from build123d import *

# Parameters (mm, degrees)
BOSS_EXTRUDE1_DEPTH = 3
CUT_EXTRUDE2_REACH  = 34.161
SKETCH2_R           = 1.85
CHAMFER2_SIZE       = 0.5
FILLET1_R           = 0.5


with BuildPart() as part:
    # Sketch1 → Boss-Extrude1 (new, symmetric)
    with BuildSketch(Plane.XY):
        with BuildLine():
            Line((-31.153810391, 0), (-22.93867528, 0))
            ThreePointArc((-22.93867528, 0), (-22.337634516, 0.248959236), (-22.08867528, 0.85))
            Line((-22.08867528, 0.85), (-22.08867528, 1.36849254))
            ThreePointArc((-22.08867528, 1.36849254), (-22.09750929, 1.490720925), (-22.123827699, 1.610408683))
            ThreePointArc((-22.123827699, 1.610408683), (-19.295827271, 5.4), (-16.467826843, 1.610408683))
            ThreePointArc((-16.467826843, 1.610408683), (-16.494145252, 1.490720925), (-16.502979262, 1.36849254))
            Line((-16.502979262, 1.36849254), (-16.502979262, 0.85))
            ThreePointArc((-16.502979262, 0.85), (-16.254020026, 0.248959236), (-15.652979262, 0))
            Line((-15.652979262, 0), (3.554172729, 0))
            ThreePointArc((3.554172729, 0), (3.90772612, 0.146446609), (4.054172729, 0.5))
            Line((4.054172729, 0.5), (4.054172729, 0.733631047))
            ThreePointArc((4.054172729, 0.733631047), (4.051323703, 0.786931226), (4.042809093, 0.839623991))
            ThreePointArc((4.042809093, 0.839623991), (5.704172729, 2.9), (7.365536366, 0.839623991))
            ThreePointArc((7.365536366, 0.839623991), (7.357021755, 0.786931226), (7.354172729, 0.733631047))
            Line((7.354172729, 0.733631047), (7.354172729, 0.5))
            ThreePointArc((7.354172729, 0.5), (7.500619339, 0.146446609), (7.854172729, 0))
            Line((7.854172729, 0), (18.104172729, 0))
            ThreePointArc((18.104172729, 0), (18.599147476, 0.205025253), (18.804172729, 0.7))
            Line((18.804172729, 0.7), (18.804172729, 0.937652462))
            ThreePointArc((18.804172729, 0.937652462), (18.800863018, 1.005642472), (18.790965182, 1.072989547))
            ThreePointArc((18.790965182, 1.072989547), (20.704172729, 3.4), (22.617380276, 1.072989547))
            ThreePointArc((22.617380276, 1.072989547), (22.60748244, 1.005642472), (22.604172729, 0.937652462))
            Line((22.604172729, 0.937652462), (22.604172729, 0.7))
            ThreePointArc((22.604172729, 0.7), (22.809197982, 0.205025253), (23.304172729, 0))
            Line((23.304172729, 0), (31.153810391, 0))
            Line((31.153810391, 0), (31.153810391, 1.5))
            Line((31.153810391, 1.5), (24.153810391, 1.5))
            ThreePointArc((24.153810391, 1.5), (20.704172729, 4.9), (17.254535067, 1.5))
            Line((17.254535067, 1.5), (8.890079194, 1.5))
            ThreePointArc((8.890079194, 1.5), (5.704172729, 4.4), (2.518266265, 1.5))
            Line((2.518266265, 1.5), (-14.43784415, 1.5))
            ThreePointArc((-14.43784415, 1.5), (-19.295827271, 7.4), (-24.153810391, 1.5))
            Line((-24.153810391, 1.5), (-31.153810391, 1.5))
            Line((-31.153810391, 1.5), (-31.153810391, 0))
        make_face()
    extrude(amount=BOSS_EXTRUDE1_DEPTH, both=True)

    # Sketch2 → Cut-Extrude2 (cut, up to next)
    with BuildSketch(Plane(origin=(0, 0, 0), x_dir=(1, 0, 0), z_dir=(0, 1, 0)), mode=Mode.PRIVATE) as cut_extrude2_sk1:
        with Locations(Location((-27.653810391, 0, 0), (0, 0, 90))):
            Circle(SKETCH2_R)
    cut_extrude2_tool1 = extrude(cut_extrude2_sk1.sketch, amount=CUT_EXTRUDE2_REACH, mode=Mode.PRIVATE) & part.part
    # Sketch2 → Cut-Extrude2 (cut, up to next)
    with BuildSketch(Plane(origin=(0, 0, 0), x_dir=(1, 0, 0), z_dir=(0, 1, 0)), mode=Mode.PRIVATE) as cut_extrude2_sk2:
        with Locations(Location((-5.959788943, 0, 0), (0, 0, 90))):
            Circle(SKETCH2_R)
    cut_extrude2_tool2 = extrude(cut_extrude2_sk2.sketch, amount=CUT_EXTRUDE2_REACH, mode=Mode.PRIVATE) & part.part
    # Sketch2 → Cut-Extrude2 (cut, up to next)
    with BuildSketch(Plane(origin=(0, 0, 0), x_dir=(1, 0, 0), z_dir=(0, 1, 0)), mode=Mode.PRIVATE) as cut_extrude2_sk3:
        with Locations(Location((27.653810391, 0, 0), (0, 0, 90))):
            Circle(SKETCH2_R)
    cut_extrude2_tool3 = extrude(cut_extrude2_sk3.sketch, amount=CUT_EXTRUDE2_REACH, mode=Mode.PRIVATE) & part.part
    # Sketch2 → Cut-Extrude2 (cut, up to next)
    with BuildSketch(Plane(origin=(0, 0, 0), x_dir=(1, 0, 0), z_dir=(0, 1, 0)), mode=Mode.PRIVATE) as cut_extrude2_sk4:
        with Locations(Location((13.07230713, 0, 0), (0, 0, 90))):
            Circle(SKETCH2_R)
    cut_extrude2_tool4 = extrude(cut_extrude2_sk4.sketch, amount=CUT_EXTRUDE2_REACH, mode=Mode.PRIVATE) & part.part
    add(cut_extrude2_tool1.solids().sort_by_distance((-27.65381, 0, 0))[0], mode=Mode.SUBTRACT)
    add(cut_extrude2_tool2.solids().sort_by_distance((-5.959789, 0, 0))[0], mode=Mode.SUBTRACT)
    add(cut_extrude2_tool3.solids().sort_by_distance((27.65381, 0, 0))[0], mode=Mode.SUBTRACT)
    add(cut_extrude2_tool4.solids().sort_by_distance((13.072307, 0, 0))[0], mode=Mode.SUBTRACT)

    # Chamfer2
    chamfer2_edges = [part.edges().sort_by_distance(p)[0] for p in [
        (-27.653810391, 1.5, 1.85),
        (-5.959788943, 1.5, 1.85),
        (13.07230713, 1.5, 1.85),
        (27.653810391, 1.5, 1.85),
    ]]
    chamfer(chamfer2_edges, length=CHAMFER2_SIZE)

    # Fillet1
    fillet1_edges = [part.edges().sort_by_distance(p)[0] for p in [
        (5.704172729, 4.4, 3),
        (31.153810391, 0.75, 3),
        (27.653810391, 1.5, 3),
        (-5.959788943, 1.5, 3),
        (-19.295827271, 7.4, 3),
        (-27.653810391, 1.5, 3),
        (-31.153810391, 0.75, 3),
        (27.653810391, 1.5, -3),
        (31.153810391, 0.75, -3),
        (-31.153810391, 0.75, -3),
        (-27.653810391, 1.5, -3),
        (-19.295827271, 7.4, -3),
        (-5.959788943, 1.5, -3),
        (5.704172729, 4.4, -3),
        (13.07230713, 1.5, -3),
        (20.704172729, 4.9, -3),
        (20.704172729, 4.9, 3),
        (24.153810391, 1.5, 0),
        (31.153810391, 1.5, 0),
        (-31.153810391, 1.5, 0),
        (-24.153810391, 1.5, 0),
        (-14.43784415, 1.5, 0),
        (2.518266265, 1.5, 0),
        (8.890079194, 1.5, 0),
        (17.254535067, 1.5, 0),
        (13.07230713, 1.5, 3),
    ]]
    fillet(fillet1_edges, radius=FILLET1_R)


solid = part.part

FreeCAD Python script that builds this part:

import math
import FreeCAD as App
import Part
import Sketcher
from FreeCAD import Vector


def edges_at(feature, points):
    """Names of the edges that pass closest to the given points."""
    edges = feature.Shape.Edges
    near = lambda p: min(range(len(edges)), key=lambda i: edges[i].distToShape(Part.Vertex(*p))[0])
    return sorted({f"Edge{near(p) + 1}" for p in points})

doc = App.newDocument("Part")
params = doc.addObject("Spreadsheet::Sheet", "Params")
for row, (alias, value) in enumerate([
    ("sketch1_radius", "0.5 mm"),
    ("sketch1_radius2", "1.7 mm"),
    ("sketch1_radius3", "0.7 mm"),
    ("sketch1_radius4", "3.2 mm"),
    ("sketch1_width", "7 mm"),
    ("pad1_length", "6 mm"),
    ("sketch2_diameter", "3.7 mm"),
    ("sketch3_diameter", "3.7 mm"),
    ("sketch4_diameter", "3.7 mm"),
    ("sketch5_diameter", "3.7 mm"),
    ("chamfer_size", "0.5 mm"),
    ("fillet_radius", "0.5 mm"),
], start=1):
    params.set(f"A{row}", alias)
    params.set(f"B{row}", "=" + value)
    params.setAlias(f"B{row}", alias)

body = doc.addObject("PartDesign::Body", "Body")

# Sketch on XY plane
sketch1 = body.newObject("Sketcher::SketchObject", "Sketch")
sketch1.AttachmentSupport = (doc.getObject("XY_Plane"), [""])
sketch1.MapMode = "FlatFace"
sketch1.addGeometry([
    Part.LineSegment(Vector(-31.15, 0, 0), Vector(-22.94, 0, 0)),  # 0
    Part.ArcOfCircle(Part.Circle(Vector(-22.94, 0.85, 0), Vector(0, 0, 1), 0.85), math.radians(-90), math.radians(0)),  # 1
    Part.LineSegment(Vector(-22.09, 0.85, 0), Vector(-22.09, 1.37, 0)),  # 2
    Part.ArcOfCircle(Part.Circle(Vector(-22.94, 1.37, 0), Vector(0, 0, 1), 0.85), math.radians(0), math.radians(16.54)),  # 3
    Part.ArcOfCircle(Part.Circle(Vector(-19.3, 2.45, 0), Vector(0, 0, 1), 2.95), math.radians(-17), math.radians(197)),  # 4
    Part.ArcOfCircle(Part.Circle(Vector(-15.65, 1.37, 0), Vector(0, 0, 1), 0.85), math.radians(163.46), math.radians(180)),  # 5
    Part.LineSegment(Vector(-16.5, 1.37, 0), Vector(-16.5, 0.85, 0)),  # 6
    Part.ArcOfCircle(Part.Circle(Vector(-15.65, 0.85, 0), Vector(0, 0, 1), 0.85), math.radians(180), math.radians(270)),  # 7
    Part.LineSegment(Vector(-15.65, 0, 0), Vector(3.55, 0, 0)),  # 8
    Part.ArcOfCircle(Part.Circle(Vector(3.55, 0.5, 0), Vector(0, 0, 1), 0.5), math.radians(-90), math.radians(0)),  # 9
    Part.LineSegment(Vector(4.05, 0.5, 0), Vector(4.05, 0.73, 0)),  # 10
    Part.ArcOfCircle(Part.Circle(Vector(3.55, 0.73, 0), Vector(0, 0, 1), 0.5), math.radians(0), math.radians(12.24)),  # 11
    Part.ArcOfCircle(Part.Circle(Vector(5.7, 1.2, 0), Vector(0, 0, 1), 1.7), math.radians(-12), math.radians(192)),  # 12
    Part.ArcOfCircle(Part.Circle(Vector(7.85, 0.73, 0), Vector(0, 0, 1), 0.5), math.radians(167.76), math.radians(180)),  # 13
    Part.LineSegment(Vector(7.35, 0.73, 0), Vector(7.35, 0.5, 0)),  # 14
    Part.ArcOfCircle(Part.Circle(Vector(7.85, 0.5, 0), Vector(0, 0, 1), 0.5), math.radians(180), math.radians(270)),  # 15
    Part.LineSegment(Vector(7.85, 0, 0), Vector(18.1, 0, 0)),  # 16
    Part.ArcOfCircle(Part.Circle(Vector(18.1, 0.7, 0), Vector(0, 0, 1), 0.7), math.radians(-90), math.radians(0)),  # 17
    Part.LineSegment(Vector(18.8, 0.7, 0), Vector(18.8, 0.94, 0)),  # 18
    Part.ArcOfCircle(Part.Circle(Vector(18.1, 0.94, 0), Vector(0, 0, 1), 0.7), math.radians(0), math.radians(11.15)),  # 19
    Part.ArcOfCircle(Part.Circle(Vector(20.7, 1.45, 0), Vector(0, 0, 1), 1.95), math.radians(-11), math.radians(191)),  # 20
    Part.ArcOfCircle(Part.Circle(Vector(23.3, 0.94, 0), Vector(0, 0, 1), 0.7), math.radians(168.85), math.radians(180)),  # 21
    Part.LineSegment(Vector(22.6, 0.94, 0), Vector(22.6, 0.7, 0)),  # 22
    Part.ArcOfCircle(Part.Circle(Vector(23.3, 0.7, 0), Vector(0, 0, 1), 0.7), math.radians(180), math.radians(270)),  # 23
    Part.LineSegment(Vector(23.3, 0, 0), Vector(31.15, 0, 0)),  # 24
    Part.LineSegment(Vector(31.15, 0, 0), Vector(31.15, 1.5, 0)),  # 25
    Part.LineSegment(Vector(31.15, 1.5, 0), Vector(24.15, 1.5, 0)),  # 26
    Part.ArcOfCircle(Part.Circle(Vector(20.7, 1.45, 0), Vector(0, 0, 1), 3.45), math.radians(1), math.radians(179)),  # 27
    Part.LineSegment(Vector(17.25, 1.5, 0), Vector(8.89, 1.5, 0)),  # 28
    Part.ArcOfCircle(Part.Circle(Vector(5.7, 1.2, 0), Vector(0, 0, 1), 3.2), math.radians(5), math.radians(175)),  # 29
    Part.LineSegment(Vector(2.52, 1.5, 0), Vector(-14.44, 1.5, 0)),  # 30
    Part.ArcOfCircle(Part.Circle(Vector(-19.3, 2.45, 0), Vector(0, 0, 1), 4.95), math.radians(-11), math.radians(191)),  # 31
    Part.LineSegment(Vector(-24.15, 1.5, 0), Vector(-31.15, 1.5, 0)),  # 32
    Part.LineSegment(Vector(-31.15, 1.5, 0), Vector(-31.15, 0, 0)),  # 33
], False)
sketch1.addConstraint([
    Sketcher.Constraint("Tangent", 0, 2, 1, 1),
    Sketcher.Constraint("Tangent", 1, 2, 2, 1),
    Sketcher.Constraint("Tangent", 2, 2, 3, 1),
    Sketcher.Constraint("Tangent", 3, 2, 4, 2),
    Sketcher.Constraint("Tangent", 4, 1, 5, 1),
    Sketcher.Constraint("Tangent", 5, 2, 6, 1),
    Sketcher.Constraint("Tangent", 6, 2, 7, 1),
    Sketcher.Constraint("Tangent", 7, 2, 8, 1),
    Sketcher.Constraint("Tangent", 8, 2, 9, 1),
    Sketcher.Constraint("Tangent", 9, 2, 10, 1),
    Sketcher.Constraint("Tangent", 10, 2, 11, 1),
    Sketcher.Constraint("Tangent", 11, 2, 12, 2),
    Sketcher.Constraint("Tangent", 12, 1, 13, 1),
    Sketcher.Constraint("Tangent", 13, 2, 14, 1),
    Sketcher.Constraint("Tangent", 14, 2, 15, 1),
    Sketcher.Constraint("Tangent", 15, 2, 16, 1),
    Sketcher.Constraint("Tangent", 16, 2, 17, 1),
    Sketcher.Constraint("Tangent", 17, 2, 18, 1),
    Sketcher.Constraint("Tangent", 18, 2, 19, 1),
    Sketcher.Constraint("Tangent", 19, 2, 20, 2),
    Sketcher.Constraint("Tangent", 20, 1, 21, 1),
    Sketcher.Constraint("Tangent", 21, 2, 22, 1),
    Sketcher.Constraint("Tangent", 22, 2, 23, 1),
    Sketcher.Constraint("Tangent", 23, 2, 24, 1),
    Sketcher.Constraint("Coincident", 24, 2, 25, 1),
    Sketcher.Constraint("Coincident", 25, 2, 26, 1),
    Sketcher.Constraint("Coincident", 26, 2, 27, 1),
    Sketcher.Constraint("Coincident", 27, 2, 28, 1),
    Sketcher.Constraint("Coincident", 28, 2, 29, 1),
    Sketcher.Constraint("Coincident", 29, 2, 30, 1),
    Sketcher.Constraint("Coincident", 30, 2, 31, 1),
    Sketcher.Constraint("Coincident", 31, 2, 32, 1),
    Sketcher.Constraint("Coincident", 32, 2, 33, 1),
    Sketcher.Constraint("Coincident", 33, 2, 0, 1),
    Sketcher.Constraint("Horizontal", 0),
    Sketcher.Constraint("Vertical", 2),
    Sketcher.Constraint("Vertical", 6),
    Sketcher.Constraint("Horizontal", 8),
    Sketcher.Constraint("Vertical", 10),
    Sketcher.Constraint("Vertical", 14),
    Sketcher.Constraint("Horizontal", 16),
    Sketcher.Constraint("Vertical", 18),
    Sketcher.Constraint("Vertical", 22),
    Sketcher.Constraint("Horizontal", 24),
    Sketcher.Constraint("Vertical", 25),
    Sketcher.Constraint("Horizontal", 26),
    Sketcher.Constraint("Horizontal", 28),
    Sketcher.Constraint("Horizontal", 30),
    Sketcher.Constraint("Horizontal", 32),
    Sketcher.Constraint("Vertical", 33),
    Sketcher.Constraint("Coincident", 27, 3, 20, 3),
    Sketcher.Constraint("Coincident", 29, 3, 12, 3),
    Sketcher.Constraint("Coincident", 31, 3, 4, 3),
    Sketcher.Constraint("Equal", 1, 3),
    Sketcher.Constraint("Equal", 3, 5),
    Sketcher.Constraint("Equal", 5, 7),
    Sketcher.Constraint("Equal", 9, 11),
    Sketcher.Constraint("Equal", 11, 13),
    Sketcher.Constraint("Equal", 13, 15),
    Sketcher.Constraint("Equal", 17, 19),
    Sketcher.Constraint("Equal", 19, 21),
    Sketcher.Constraint("Equal", 21, 23),
    Sketcher.Constraint("Symmetric", 24, 2, 33, 2, -1, 1),
    Sketcher.Constraint("Symmetric", 26, 2, 31, 2, -2),
    Sketcher.Constraint("PointOnObject", 0, 2, -1),
    Sketcher.Constraint("PointOnObject", 7, 2, -1),
    Sketcher.Constraint("PointOnObject", 15, 2, -1),
    Sketcher.Constraint("Horizontal", 3, 3, 5, 3),
    Sketcher.Constraint("Horizontal", 11, 3, 13, 3),
    Sketcher.Constraint("Horizontal", 19, 3, 21, 3),
    Sketcher.Constraint("Horizontal", 26, 2, 27, 2),
    Sketcher.Constraint("Horizontal", 28, 2, 29, 2),
    Sketcher.Constraint("Radius", 9, 0.5),
    Sketcher.Constraint("Radius", 12, 1.7),
    Sketcher.Constraint("Radius", 17, 0.7),
    Sketcher.Constraint("Radius", 29, 3.2),
    Sketcher.Constraint("DistanceX", 26, 2, 26, 1, 7.0),
    Sketcher.Constraint("Radius", 1, 0.85),
    Sketcher.Constraint("Radius", 4, 2.95),
    Sketcher.Constraint("Radius", 20, 1.95),
    Sketcher.Constraint("Radius", 27, 3.45),
    Sketcher.Constraint("Radius", 31, 4.95),
    Sketcher.Constraint("DistanceY", 25, 1, 25, 2, 1.5),
    Sketcher.Constraint("DistanceX", 4, 3, 12, 3, 25.0),
    Sketcher.Constraint("DistanceX", 12, 3, 20, 3, 15.0),
    Sketcher.Constraint("DistanceX", 16, 1, 16, 2, 10.25),
    Sketcher.Constraint("DistanceY", -1, 1, 12, 3, 1.2),
    Sketcher.Constraint("DistanceY", 1, 3, 4, 3, 1.6),
    Sketcher.Constraint("DistanceX", 11, 3, 13, 3, 4.3),
    Sketcher.Constraint("DistanceY", -1, 1, 20, 3, 1.45),
    Sketcher.Constraint("DistanceX", 31, 3, 4, 1, 2.828),
])
sketch1.setExpression("Constraints[72]", "Params.sketch1_radius")
sketch1.setExpression("Constraints[73]", "Params.sketch1_radius2")
sketch1.setExpression("Constraints[74]", "Params.sketch1_radius3")
sketch1.setExpression("Constraints[75]", "Params.sketch1_radius4")
sketch1.setExpression("Constraints[76]", "Params.sketch1_width")
pad1 = body.newObject("PartDesign::Pad", "Pad")
pad1.Profile = sketch1
pad1.setExpression("Length", "Params.pad1_length")
pad1.Midplane = True

# Sketch on XZ plane
sketch2 = body.newObject("Sketcher::SketchObject", "Sketch001")
sketch2.AttachmentSupport = (doc.getObject("XZ_Plane"), [""])
sketch2.MapMode = "FlatFace"
sketch2.addGeometry(Part.Circle(Vector(-27.7, 0, 0), Vector(0, 0, 1), 1.9), False)
sketch2.addConstraint([
    Sketcher.Constraint("PointOnObject", 0, 3, -1),
    Sketcher.Constraint("Diameter", 0, 3.7),
    Sketcher.Constraint("DistanceX", 0, 3, -1, 1, 27.65381),
])
sketch2.setExpression("Constraints[1]", "Params.sketch2_diameter")
pocket1 = body.newObject("PartDesign::Pocket", "Pocket")
pocket1.Profile = sketch2
pocket1.Type = "UpToFirst"

# Sketch on XZ plane
sketch3 = body.newObject("Sketcher::SketchObject", "Sketch002")
sketch3.AttachmentSupport = (doc.getObject("XZ_Plane"), [""])
sketch3.MapMode = "FlatFace"
sketch3.addGeometry(Part.Circle(Vector(-6, 0, 0), Vector(0, 0, 1), 1.9), False)
sketch3.addConstraint([
    Sketcher.Constraint("PointOnObject", 0, 3, -1),
    Sketcher.Constraint("Diameter", 0, 3.7),
    Sketcher.Constraint("DistanceX", 0, 3, -1, 1, 5.959789),
])
sketch3.setExpression("Constraints[1]", "Params.sketch3_diameter")
pocket2 = body.newObject("PartDesign::Pocket", "Pocket001")
pocket2.Profile = sketch3
pocket2.Type = "UpToFirst"

# Sketch on XZ plane
sketch4 = body.newObject("Sketcher::SketchObject", "Sketch003")
sketch4.AttachmentSupport = (doc.getObject("XZ_Plane"), [""])
sketch4.MapMode = "FlatFace"
sketch4.addGeometry(Part.Circle(Vector(27.7, 0, 0), Vector(0, 0, 1), 1.9), False)
sketch4.addConstraint([
    Sketcher.Constraint("PointOnObject", 0, 3, -1),
    Sketcher.Constraint("Diameter", 0, 3.7),
    Sketcher.Constraint("DistanceX", -1, 1, 0, 3, 27.65381),
])
sketch4.setExpression("Constraints[1]", "Params.sketch4_diameter")
pocket3 = body.newObject("PartDesign::Pocket", "Pocket002")
pocket3.Profile = sketch4
pocket3.Type = "UpToFirst"

# Sketch on XZ plane
sketch5 = body.newObject("Sketcher::SketchObject", "Sketch004")
sketch5.AttachmentSupport = (doc.getObject("XZ_Plane"), [""])
sketch5.MapMode = "FlatFace"
sketch5.addGeometry(Part.Circle(Vector(13.1, 0, 0), Vector(0, 0, 1), 1.9), False)
sketch5.addConstraint([
    Sketcher.Constraint("PointOnObject", 0, 3, -1),
    Sketcher.Constraint("Diameter", 0, 3.7),
    Sketcher.Constraint("DistanceX", -1, 1, 0, 3, 13.072307),
])
sketch5.setExpression("Constraints[1]", "Params.sketch5_diameter")
pocket4 = body.newObject("PartDesign::Pocket", "Pocket003")
pocket4.Profile = sketch5
pocket4.Type = "UpToFirst"
doc.recompute()

chamfer = body.newObject("PartDesign::Chamfer", "Chamfer")
chamfer.Base = (pocket4, edges_at(pocket4, [
    (-27.654, 1.5, 1.85),
    (-5.96, 1.5, 1.85),
    (13.072, 1.5, 1.85),
    (27.654, 1.5, 1.85),
]))
chamfer.setExpression("Size", "Params.chamfer_size")
doc.recompute()

fillet = body.newObject("PartDesign::Fillet", "Fillet")
fillet.Base = (chamfer, edges_at(chamfer, [
    (5.704, 4.4, 3),
    (31.154, 0.75, 3),
    (27.654, 1.5, 3),
    (-5.96, 1.5, 3),
    (-19.296, 7.4, 3),
    (-27.654, 1.5, 3),
    (-31.154, 0.75, 3),
    (27.654, 1.5, -3),
    (31.154, 0.75, -3),
    (-31.154, 0.75, -3),
    (-27.654, 1.5, -3),
    (-19.296, 7.4, -3),
    (-5.96, 1.5, -3),
    (5.704, 4.4, -3),
    (13.072, 1.5, -3),
    (20.704, 4.9, -3),
    (20.704, 4.9, 3),
    (24.154, 1.5, 0),
    (31.154, 1.5, 0),
    (-31.154, 1.5, 0),
    (-24.154, 1.5, 0),
    (-14.438, 1.5, 0),
    (2.518, 1.5, 0),
    (8.89, 1.5, 0),
    (17.255, 1.5, 0),
    (13.072, 1.5, 3),
]))
fillet.setExpression("Radius", "Params.fillet_radius")

doc.recompute()
